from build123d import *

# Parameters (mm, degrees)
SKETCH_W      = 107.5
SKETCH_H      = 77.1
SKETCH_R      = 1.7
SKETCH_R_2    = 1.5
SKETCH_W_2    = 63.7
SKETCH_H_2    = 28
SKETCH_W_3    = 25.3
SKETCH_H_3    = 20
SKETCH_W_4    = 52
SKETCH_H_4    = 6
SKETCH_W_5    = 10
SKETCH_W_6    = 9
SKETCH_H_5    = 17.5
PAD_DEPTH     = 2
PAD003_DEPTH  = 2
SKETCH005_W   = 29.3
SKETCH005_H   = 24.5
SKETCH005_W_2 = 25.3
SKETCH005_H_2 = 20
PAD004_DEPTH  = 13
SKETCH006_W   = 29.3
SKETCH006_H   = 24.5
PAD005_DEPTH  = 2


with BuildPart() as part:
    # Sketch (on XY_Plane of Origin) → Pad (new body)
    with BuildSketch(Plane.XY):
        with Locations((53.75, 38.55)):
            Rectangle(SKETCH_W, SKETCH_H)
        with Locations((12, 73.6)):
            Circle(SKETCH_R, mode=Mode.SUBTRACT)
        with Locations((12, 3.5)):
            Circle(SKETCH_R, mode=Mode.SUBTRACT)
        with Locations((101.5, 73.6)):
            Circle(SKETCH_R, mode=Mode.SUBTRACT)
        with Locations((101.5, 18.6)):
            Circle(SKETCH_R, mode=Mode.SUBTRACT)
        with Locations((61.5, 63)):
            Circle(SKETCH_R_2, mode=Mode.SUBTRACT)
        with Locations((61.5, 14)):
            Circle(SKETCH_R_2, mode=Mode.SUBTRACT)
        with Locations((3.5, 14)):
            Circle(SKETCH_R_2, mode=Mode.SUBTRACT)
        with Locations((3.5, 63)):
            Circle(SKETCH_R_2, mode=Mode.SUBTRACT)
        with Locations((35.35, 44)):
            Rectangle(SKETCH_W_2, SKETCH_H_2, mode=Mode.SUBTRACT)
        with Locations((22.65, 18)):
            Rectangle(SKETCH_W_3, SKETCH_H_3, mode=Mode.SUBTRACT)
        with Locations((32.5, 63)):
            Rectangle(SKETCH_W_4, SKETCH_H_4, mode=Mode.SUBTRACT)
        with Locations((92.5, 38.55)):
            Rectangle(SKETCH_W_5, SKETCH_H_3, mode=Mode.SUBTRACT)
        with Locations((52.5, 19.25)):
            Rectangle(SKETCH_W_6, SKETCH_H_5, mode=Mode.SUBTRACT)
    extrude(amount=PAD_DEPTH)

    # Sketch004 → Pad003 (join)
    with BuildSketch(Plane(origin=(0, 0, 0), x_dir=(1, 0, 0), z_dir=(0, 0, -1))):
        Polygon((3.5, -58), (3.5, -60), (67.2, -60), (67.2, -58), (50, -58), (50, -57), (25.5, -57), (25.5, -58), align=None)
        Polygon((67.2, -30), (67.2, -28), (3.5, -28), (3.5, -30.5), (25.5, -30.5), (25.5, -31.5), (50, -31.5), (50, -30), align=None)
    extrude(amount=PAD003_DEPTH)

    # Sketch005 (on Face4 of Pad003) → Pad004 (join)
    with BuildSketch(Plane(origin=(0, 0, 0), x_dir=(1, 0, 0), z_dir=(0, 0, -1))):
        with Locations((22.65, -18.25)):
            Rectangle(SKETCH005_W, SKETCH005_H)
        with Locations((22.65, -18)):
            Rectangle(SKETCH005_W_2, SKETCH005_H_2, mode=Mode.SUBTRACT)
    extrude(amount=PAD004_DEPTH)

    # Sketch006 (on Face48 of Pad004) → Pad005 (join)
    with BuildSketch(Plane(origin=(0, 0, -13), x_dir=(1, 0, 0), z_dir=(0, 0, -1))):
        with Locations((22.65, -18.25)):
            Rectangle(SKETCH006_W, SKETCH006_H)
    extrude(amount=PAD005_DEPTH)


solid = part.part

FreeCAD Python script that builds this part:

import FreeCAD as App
import Part
import Sketcher

V = App.Vector

doc = App.newDocument("Part")
body = doc.addObject("PartDesign::Body", "Body")

# Sketch on XY plane
sketch1 = body.newObject("Sketcher::SketchObject", "Sketch")
sketch1.AttachmentSupport = (doc.getObject("XY_Plane"), [""])
sketch1.MapMode = "FlatFace"
sketch1.addGeometry([
    Part.LineSegment(V(0, 77.1, 0), V(0, 0, 0)),  # 0
    Part.LineSegment(V(0, 0, 0), V(107.5, 0, 0)),  # 1
    Part.LineSegment(V(107.5, 0, 0), V(107.5, 77.1, 0)),  # 2
    Part.LineSegment(V(107.5, 77.1, 0), V(0, 77.1, 0)),  # 3
    Part.Circle(V(12, 3.5, 0), V(0, 0, 1), 1.7),  # 4
    Part.Circle(V(3.5, 14, 0), V(0, 0, 1), 1.5),  # 5
    Part.LineSegment(V(35.3, 8, 0), V(10, 8, 0)),  # 6
    Part.LineSegment(V(10, 8, 0), V(10, 28, 0)),  # 7
    Part.LineSegment(V(10, 28, 0), V(35.3, 28, 0)),  # 8
    Part.LineSegment(V(35.3, 28, 0), V(35.3, 8, 0)),  # 9
    Part.LineSegment(V(57, 10.5, 0), V(48, 10.5, 0)),  # 10
    Part.LineSegment(V(48, 10.5, 0), V(48, 28, 0)),  # 11
    Part.LineSegment(V(48, 28, 0), V(57, 28, 0)),  # 12
    Part.LineSegment(V(57, 28, 0), V(57, 10.5, 0)),  # 13
    Part.Circle(V(61.5, 14, 0), V(0, 0, 1), 1.5),  # 14
    Part.Circle(V(101.5, 18.6, 0), V(0, 0, 1), 1.7),  # 15
    Part.LineSegment(V(67.2, 30, 0), V(3.5, 30, 0)),  # 16
    Part.LineSegment(V(3.5, 30, 0), V(3.5, 58, 0)),  # 17
    Part.LineSegment(V(3.5, 58, 0), V(67.2, 58, 0)),  # 18
    Part.LineSegment(V(67.2, 58, 0), V(67.2, 30, 0)),  # 19
    Part.Circle(V(3.5, 63, 0), V(0, 0, 1), 1.5),  # 20
    Part.Circle(V(12, 73.6, 0), V(0, 0, 1), 1.7),  # 21
    Part.LineSegment(V(58.5, 60, 0), V(6.5, 60, 0)),  # 22
    Part.LineSegment(V(6.5, 60, 0), V(6.5, 66, 0)),  # 23
    Part.LineSegment(V(6.5, 66, 0), V(58.5, 66, 0)),  # 24
    Part.LineSegment(V(58.5, 66, 0), V(58.5, 60, 0)),  # 25
    Part.LineSegment(V(97.5, 28.55, 0), V(87.5, 28.55, 0)),  # 26
    Part.LineSegment(V(87.5, 28.55, 0), V(87.5, 48.55, 0)),  # 27
    Part.LineSegment(V(87.5, 48.55, 0), V(97.5, 48.55, 0)),  # 28
    Part.LineSegment(V(97.5, 48.55, 0), V(97.5, 28.55, 0)),  # 29
    Part.Circle(V(61.5, 63, 0), V(0, 0, 1), 1.5),  # 30
    Part.Circle(V(101.5, 73.6, 0), V(0, 0, 1), 1.7),  # 31
], False)
sketch1.addConstraint([
    Sketcher.Constraint("Coincident", 0, 2, 1, 1),
    Sketcher.Constraint("Coincident", 1, 2, 2, 1),
    Sketcher.Constraint("Coincident", 2, 2, 3, 1),
    Sketcher.Constraint("Coincident", 3, 2, 0, 1),
    Sketcher.Constraint("Coincident", 6, 2, 7, 1),
    Sketcher.Constraint("Coincident", 7, 2, 8, 1),
    Sketcher.Constraint("Coincident", 8, 2, 9, 1),
    Sketcher.Constraint("Coincident", 9, 2, 6, 1),
    Sketcher.Constraint("Coincident", 10, 2, 11, 1),
    Sketcher.Constraint("Coincident", 11, 2, 12, 1),
    Sketcher.Constraint("Coincident", 12, 2, 13, 1),
    Sketcher.Constraint("Coincident", 13, 2, 10, 1),
    Sketcher.Constraint("Coincident", 16, 2, 17, 1),
    Sketcher.Constraint("Coincident", 17, 2, 18, 1),
    Sketcher.Constraint("Coincident", 18, 2, 19, 1),
    Sketcher.Constraint("Coincident", 19, 2, 16, 1),
    Sketcher.Constraint("Coincident", 22, 2, 23, 1),
    Sketcher.Constraint("Coincident", 23, 2, 24, 1),
    Sketcher.Constraint("Coincident", 24, 2, 25, 1),
    Sketcher.Constraint("Coincident", 25, 2, 22, 1),
    Sketcher.Constraint("Coincident", 26, 2, 27, 1),
    Sketcher.Constraint("Coincident", 27, 2, 28, 1),
    Sketcher.Constraint("Coincident", 28, 2, 29, 1),
    Sketcher.Constraint("Coincident", 29, 2, 26, 1),
    Sketcher.Constraint("Vertical", 0),
    Sketcher.Constraint("Horizontal", 1),
    Sketcher.Constraint("Vertical", 2),
    Sketcher.Constraint("Horizontal", 3),
    Sketcher.Constraint("Horizontal", 6),
    Sketcher.Constraint("Vertical", 7),
    Sketcher.Constraint("Horizontal", 8),
    Sketcher.Constraint("Vertical", 9),
    Sketcher.Constraint("Horizontal", 10),
    Sketcher.Constraint("Vertical", 11),
    Sketcher.Constraint("Horizontal", 12),
    Sketcher.Constraint("Vertical", 13),
    Sketcher.Constraint("Horizontal", 16),
    Sketcher.Constraint("Vertical", 17),
    Sketcher.Constraint("Horizontal", 18),
    Sketcher.Constraint("Vertical", 19),
    Sketcher.Constraint("Horizontal", 22),
    Sketcher.Constraint("Vertical", 23),
    Sketcher.Constraint("Horizontal", 24),
    Sketcher.Constraint("Vertical", 25),
    Sketcher.Constraint("Horizontal", 26),
    Sketcher.Constraint("Vertical", 27),
    Sketcher.Constraint("Horizontal", 28),
    Sketcher.Constraint("Vertical", 29),
    Sketcher.Constraint("Coincident", 0, 2, -1, 1),
    Sketcher.Constraint("Equal", 5, 14),
    Sketcher.Constraint("Equal", 4, 15),
    Sketcher.Constraint("Equal", 14, 20),
    Sketcher.Constraint("Equal", 15, 21),
    Sketcher.Constraint("Equal", 20, 30),
    Sketcher.Constraint("Equal", 21, 31),
    Sketcher.Constraint("Horizontal", 5, 3, 14, 3),
    Sketcher.Constraint("Horizontal", 20, 3, 30, 3),
    Sketcher.Constraint("Horizontal", 21, 3, 31, 3),
    Sketcher.Constraint("Horizontal", 8, 2, 11, 2),
    Sketcher.Constraint("Vertical", 5, 3, 20, 3),
    Sketcher.Constraint("Vertical", 4, 3, 21, 3),
    Sketcher.Constraint("Vertical", 14, 3, 30, 3),
    Sketcher.Constraint("Vertical", 15, 3, 31, 3),
    Sketcher.Constraint("Vertical", 20, 3, 16, 2),
    Sketcher.Constraint("Equal", 9, 27),
    Sketcher.Constraint("Diameter", 5, 3.0),
    Sketcher.Constraint("Diameter", 4, 3.4),
    Sketcher.Constraint("DistanceX", 10, 2, 10, 1, 9.0),
    Sketcher.Constraint("DistanceX", 22, 2, 22, 1, 52.0),
    Sketcher.Constraint("DistanceX", 26, 2, 26, 1, 10.0),
    Sketcher.Constraint("DistanceY", 7, 1, 7, 2, 20.0),
    Sketcher.Constraint("DistanceY", 17, 1, 17, 2, 28.0),
    Sketcher.Constraint("DistanceY", 23, 1, 23, 2, 6.0),
    Sketcher.Constraint("DistanceX", 1, 1, 1, 2, 107.5),
    Sketcher.Constraint("DistanceX", 6, 2, 6, 1, 25.3),
    Sketcher.Constraint("DistanceX", 16, 2, 16, 1, 63.7),
    Sketcher.Constraint("DistanceY", 0, 2, 0, 1, 77.1),
    Sketcher.Constraint("DistanceY", 11, 1, 11, 2, 17.5),
    Sketcher.Constraint("DistanceX", -1, 1, 4, 3, 12.0),
    Sketcher.Constraint("DistanceY", -1, 1, 5, 3, 14.0),
    Sketcher.Constraint("DistanceY", -1, 1, 20, 3, 63.0),
    Sketcher.Constraint("DistanceX", -1, 1, 6, 2, 10.0),
    Sketcher.Constraint("DistanceY", -1, 1, 6, 2, 8.0),
    Sketcher.Constraint("DistanceX", -1, 1, 10, 2, 48.0),
    Sketcher.Constraint("DistanceY", -1, 1, 16, 2, 30.0),
    Sketcher.Constraint("DistanceY", -1, 1, 22, 2, 60.0),
    Sketcher.Constraint("DistanceX", 5, 3, 14, 3, 58.0),
    Sketcher.Constraint("DistanceX", 14, 3, 15, 3, 40.0),
    Sketcher.Constraint("DistanceY", 15, 3, 21, 3, 55.0),
    Sketcher.Constraint("DistanceX", 15, 3, 1, 2, 6.0),
    Sketcher.Constraint("DistanceY", 4, 3, 10, 2, 7.0),
    Sketcher.Constraint("DistanceX", 17, 2, 22, 2, 3.0),
    Sketcher.Constraint("DistanceX", 26, 2, 15, 3, 14.0),
    Sketcher.Constraint("DistanceY", -1, 1, 15, 3, 18.6),
    Sketcher.Constraint("DistanceY", -1, 1, 26, 2, 28.55),
])
pad1 = body.newObject("PartDesign::Pad", "Pad")
pad1.Profile = sketch1
pad1.Length = 2

# Sketch on XY plane
sketch2 = body.newObject("Sketcher::SketchObject", "Sketch001")
sketch2.AttachmentSupport = (doc.getObject("XY_Plane"), [""])
sketch2.MapMode = "FlatFace"
sketch2.addGeometry([
    Part.LineSegment(V(3.5, 58, 0), V(3.5, 60, 0)),  # 0
    Part.LineSegment(V(3.5, 60, 0), V(67.2, 60, 0)),  # 1
    Part.LineSegment(V(67.2, 60, 0), V(67.2, 58, 0)),  # 2
    Part.LineSegment(V(67.2, 58, 0), V(50, 58, 0)),  # 3
    Part.LineSegment(V(50, 58, 0), V(50, 57, 0)),  # 4
    Part.LineSegment(V(50, 57, 0), V(25.5, 57, 0)),  # 5
    Part.LineSegment(V(25.5, 57, 0), V(25.5, 58, 0)),  # 6
    Part.LineSegment(V(25.5, 58, 0), V(3.5, 58, 0)),  # 7
    Part.LineSegment(V(67.2, 30, 0), V(67.2, 28, 0)),  # 8
    Part.LineSegment(V(67.2, 28, 0), V(3.5, 28, 0)),  # 9
    Part.LineSegment(V(3.5, 28, 0), V(3.5, 30.5, 0)),  # 10
    Part.LineSegment(V(3.5, 30.5, 0), V(25.5, 30.5, 0)),  # 11
    Part.LineSegment(V(25.5, 30.5, 0), V(25.5, 31.5, 0)),  # 12
    Part.LineSegment(V(25.5, 31.5, 0), V(50, 31.5, 0)),  # 13
    Part.LineSegment(V(50, 31.5, 0), V(50, 30, 0)),  # 14
    Part.LineSegment(V(50, 30, 0), V(67.2, 30, 0)),  # 15
], False)
sketch2.addConstraint([
    Sketcher.Constraint("Coincident", 0, 2, 1, 1),
    Sketcher.Constraint("Coincident", 1, 2, 2, 1),
    Sketcher.Constraint("Coincident", 2, 2, 3, 1),
    Sketcher.Constraint("Coincident", 3, 2, 4, 1),
    Sketcher.Constraint("Coincident", 4, 2, 5, 1),
    Sketcher.Constraint("Coincident", 5, 2, 6, 1),
    Sketcher.Constraint("Coincident", 6, 2, 7, 1),
    Sketcher.Constraint("Coincident", 7, 2, 0, 1),
    Sketcher.Constraint("Coincident", 8, 2, 9, 1),
    Sketcher.Constraint("Coincident", 9, 2, 10, 1),
    Sketcher.Constraint("Coincident", 10, 2, 11, 1),
    Sketcher.Constraint("Coincident", 11, 2, 12, 1),
    Sketcher.Constraint("Coincident", 12, 2, 13, 1),
    Sketcher.Constraint("Coincident", 13, 2, 14, 1),
    Sketcher.Constraint("Coincident", 14, 2, 15, 1),
    Sketcher.Constraint("Coincident", 15, 2, 8, 1),
    Sketcher.Constraint("Vertical", 0),
    Sketcher.Constraint("Horizontal", 1),
    Sketcher.Constraint("Vertical", 2),
    Sketcher.Constraint("Horizontal", 3),
    Sketcher.Constraint("Vertical", 4),
    Sketcher.Constraint("Horizontal", 5),
    Sketcher.Constraint("Vertical", 6),
    Sketcher.Constraint("Horizontal", 7),
    Sketcher.Constraint("Vertical", 8),
    Sketcher.Constraint("Horizontal", 9),
    Sketcher.Constraint("Vertical", 10),
    Sketcher.Constraint("Horizontal", 11),
    Sketcher.Constraint("Vertical", 12),
    Sketcher.Constraint("Horizontal", 13),
    Sketcher.Constraint("Vertical", 14),
    Sketcher.Constraint("Horizontal", 15),
    Sketcher.Constraint("Horizontal", 3, 2, 6, 2),
    Sketcher.Constraint("Vertical", 2, 2, 8, 2),
    Sketcher.Constraint("Vertical", 7, 2, 9, 2),
    Sketcher.Constraint("Vertical", 6, 2, 11, 2),
    Sketcher.Constraint("Vertical", 4, 2, 13, 2),
    Sketcher.Constraint("Equal", 2, 8),
    Sketcher.Constraint("Equal", 6, 12),
    Sketcher.Constraint("DistanceX", 7, 2, 7, 1, 22.0),
    Sketcher.Constraint("DistanceY", 0, 1, 0, 2, 2.0),
    Sketcher.Constraint("DistanceY", 4, 2, 4, 1, 1.0),
    Sketcher.Constraint("DistanceX", 1, 1, 1, 2, 63.7),
    Sketcher.Constraint("DistanceX", 3, 2, 3, 1, 17.2),
    Sketcher.Constraint("DistanceY", 10, 1, 10, 2, 2.5),
    Sketcher.Constraint("DistanceY", -1, 1, 0, 2, 60.0),
    Sketcher.Constraint("DistanceX", -1, 1, 3, 2, 50.0),
    Sketcher.Constraint("DistanceY", -1, 1, 8, 2, 28.0),
])
pad2 = body.newObject("PartDesign::Pad", "Pad001")
pad2.Profile = sketch2
pad2.Length = 2
pad2.Reversed = True

# Sketch on XY plane
sketch3 = body.newObject("Sketcher::SketchObject", "Sketch002")
sketch3.AttachmentSupport = (doc.getObject("XY_Plane"), [""])
sketch3.MapMode = "FlatFace"
sketch3.addGeometry([
    Part.LineSegment(V(8, 6, 0), V(8, 30.5, 0)),  # 0
    Part.LineSegment(V(8, 30.5, 0), V(37.3, 30.5, 0)),  # 1
    Part.LineSegment(V(37.3, 30.5, 0), V(37.3, 6, 0)),  # 2
    Part.LineSegment(V(37.3, 6, 0), V(8, 6, 0)),  # 3
    Part.LineSegment(V(35.3, 28, 0), V(10, 28, 0)),  # 4
    Part.LineSegment(V(10, 28, 0), V(10, 8, 0)),  # 5
    Part.LineSegment(V(10, 8, 0), V(35.3, 8, 0)),  # 6
    Part.LineSegment(V(35.3, 8, 0), V(35.3, 28, 0)),  # 7
], False)
sketch3.addConstraint([
    Sketcher.Constraint("Coincident", 0, 2, 1, 1),
    Sketcher.Constraint("Coincident", 1, 2, 2, 1),
    Sketcher.Constraint("Coincident", 2, 2, 3, 1),
    Sketcher.Constraint("Coincident", 3, 2, 0, 1),
    Sketcher.Constraint("Coincident", 4, 2, 5, 1),
    Sketcher.Constraint("Coincident", 5, 2, 6, 1),
    Sketcher.Constraint("Coincident", 6, 2, 7, 1),
    Sketcher.Constraint("Coincident", 7, 2, 4, 1),
    Sketcher.Constraint("Vertical", 0),
    Sketcher.Constraint("Horizontal", 1),
    Sketcher.Constraint("Vertical", 2),
    Sketcher.Constraint("Horizontal", 3),
    Sketcher.Constraint("Horizontal", 4),
    Sketcher.Constraint("Vertical", 5),
    Sketcher.Constraint("Horizontal", 6),
    Sketcher.Constraint("Vertical", 7),
    Sketcher.Constraint("DistanceY", 5, 2, 5, 1, 20.0),
    Sketcher.Constraint("DistanceX", 1, 1, 1, 2, 29.3),
    Sketcher.Constraint("DistanceX", 4, 2, 4, 1, 25.3),
    Sketcher.Constraint("DistanceY", 0, 1, 0, 2, 24.5),
    Sketcher.Constraint("DistanceX", -1, 1, 0, 2, 8.0),
    Sketcher.Constraint("DistanceY", -1, 1, 2, 2, 6.0),
    Sketcher.Constraint("DistanceX", -1, 1, 4, 2, 10.0),
    Sketcher.Constraint("DistanceY", -1, 1, 4, 2, 28.0),
])
pad3 = body.newObject("PartDesign::Pad", "Pad002")
pad3.Profile = sketch3
pad3.Length = 13
pad3.Reversed = True

# Sketch on XY plane
sketch4 = body.newObject("Sketcher::SketchObject", "Sketch003")
sketch4.AttachmentSupport = (doc.getObject("XY_Plane"), [""])
sketch4.MapMode = "FlatFace"
sketch4.AttachmentOffset = App.Placement(V(0, 0, -13), App.Rotation())
sketch4.addGeometry([
    Part.LineSegment(V(8, 6, 0), V(8, 30.5, 0)),
    Part.LineSegment(V(8, 30.5, 0), V(37.3, 30.5, 0)),
    Part.LineSegment(V(37.3, 30.5, 0), V(37.3, 6, 0)),
    Part.LineSegment(V(37.3, 6, 0), V(8, 6, 0)),
], False)
sketch4.addConstraint([
    Sketcher.Constraint("Coincident", 0, 2, 1, 1),
    Sketcher.Constraint("Coincident", 1, 2, 2, 1),
    Sketcher.Constraint("Coincident", 2, 2, 3, 1),
    Sketcher.Constraint("Coincident", 3, 2, 0, 1),
    Sketcher.Constraint("Vertical", 0),
    Sketcher.Constraint("Horizontal", 1),
    Sketcher.Constraint("Vertical", 2),
    Sketcher.Constraint("Horizontal", 3),
    Sketcher.Constraint("DistanceX", 1, 1, 1, 2, 29.3),
    Sketcher.Constraint("DistanceY", 0, 1, 0, 2, 24.5),
    Sketcher.Constraint("DistanceX", -1, 1, 0, 2, 8.0),
    Sketcher.Constraint("DistanceY", -1, 1, 2, 2, 6.0),
])
pad4 = body.newObject("PartDesign::Pad", "Pad003")
pad4.Profile = sketch4
pad4.Length = 2
pad4.Reversed = True

doc.recompute()
